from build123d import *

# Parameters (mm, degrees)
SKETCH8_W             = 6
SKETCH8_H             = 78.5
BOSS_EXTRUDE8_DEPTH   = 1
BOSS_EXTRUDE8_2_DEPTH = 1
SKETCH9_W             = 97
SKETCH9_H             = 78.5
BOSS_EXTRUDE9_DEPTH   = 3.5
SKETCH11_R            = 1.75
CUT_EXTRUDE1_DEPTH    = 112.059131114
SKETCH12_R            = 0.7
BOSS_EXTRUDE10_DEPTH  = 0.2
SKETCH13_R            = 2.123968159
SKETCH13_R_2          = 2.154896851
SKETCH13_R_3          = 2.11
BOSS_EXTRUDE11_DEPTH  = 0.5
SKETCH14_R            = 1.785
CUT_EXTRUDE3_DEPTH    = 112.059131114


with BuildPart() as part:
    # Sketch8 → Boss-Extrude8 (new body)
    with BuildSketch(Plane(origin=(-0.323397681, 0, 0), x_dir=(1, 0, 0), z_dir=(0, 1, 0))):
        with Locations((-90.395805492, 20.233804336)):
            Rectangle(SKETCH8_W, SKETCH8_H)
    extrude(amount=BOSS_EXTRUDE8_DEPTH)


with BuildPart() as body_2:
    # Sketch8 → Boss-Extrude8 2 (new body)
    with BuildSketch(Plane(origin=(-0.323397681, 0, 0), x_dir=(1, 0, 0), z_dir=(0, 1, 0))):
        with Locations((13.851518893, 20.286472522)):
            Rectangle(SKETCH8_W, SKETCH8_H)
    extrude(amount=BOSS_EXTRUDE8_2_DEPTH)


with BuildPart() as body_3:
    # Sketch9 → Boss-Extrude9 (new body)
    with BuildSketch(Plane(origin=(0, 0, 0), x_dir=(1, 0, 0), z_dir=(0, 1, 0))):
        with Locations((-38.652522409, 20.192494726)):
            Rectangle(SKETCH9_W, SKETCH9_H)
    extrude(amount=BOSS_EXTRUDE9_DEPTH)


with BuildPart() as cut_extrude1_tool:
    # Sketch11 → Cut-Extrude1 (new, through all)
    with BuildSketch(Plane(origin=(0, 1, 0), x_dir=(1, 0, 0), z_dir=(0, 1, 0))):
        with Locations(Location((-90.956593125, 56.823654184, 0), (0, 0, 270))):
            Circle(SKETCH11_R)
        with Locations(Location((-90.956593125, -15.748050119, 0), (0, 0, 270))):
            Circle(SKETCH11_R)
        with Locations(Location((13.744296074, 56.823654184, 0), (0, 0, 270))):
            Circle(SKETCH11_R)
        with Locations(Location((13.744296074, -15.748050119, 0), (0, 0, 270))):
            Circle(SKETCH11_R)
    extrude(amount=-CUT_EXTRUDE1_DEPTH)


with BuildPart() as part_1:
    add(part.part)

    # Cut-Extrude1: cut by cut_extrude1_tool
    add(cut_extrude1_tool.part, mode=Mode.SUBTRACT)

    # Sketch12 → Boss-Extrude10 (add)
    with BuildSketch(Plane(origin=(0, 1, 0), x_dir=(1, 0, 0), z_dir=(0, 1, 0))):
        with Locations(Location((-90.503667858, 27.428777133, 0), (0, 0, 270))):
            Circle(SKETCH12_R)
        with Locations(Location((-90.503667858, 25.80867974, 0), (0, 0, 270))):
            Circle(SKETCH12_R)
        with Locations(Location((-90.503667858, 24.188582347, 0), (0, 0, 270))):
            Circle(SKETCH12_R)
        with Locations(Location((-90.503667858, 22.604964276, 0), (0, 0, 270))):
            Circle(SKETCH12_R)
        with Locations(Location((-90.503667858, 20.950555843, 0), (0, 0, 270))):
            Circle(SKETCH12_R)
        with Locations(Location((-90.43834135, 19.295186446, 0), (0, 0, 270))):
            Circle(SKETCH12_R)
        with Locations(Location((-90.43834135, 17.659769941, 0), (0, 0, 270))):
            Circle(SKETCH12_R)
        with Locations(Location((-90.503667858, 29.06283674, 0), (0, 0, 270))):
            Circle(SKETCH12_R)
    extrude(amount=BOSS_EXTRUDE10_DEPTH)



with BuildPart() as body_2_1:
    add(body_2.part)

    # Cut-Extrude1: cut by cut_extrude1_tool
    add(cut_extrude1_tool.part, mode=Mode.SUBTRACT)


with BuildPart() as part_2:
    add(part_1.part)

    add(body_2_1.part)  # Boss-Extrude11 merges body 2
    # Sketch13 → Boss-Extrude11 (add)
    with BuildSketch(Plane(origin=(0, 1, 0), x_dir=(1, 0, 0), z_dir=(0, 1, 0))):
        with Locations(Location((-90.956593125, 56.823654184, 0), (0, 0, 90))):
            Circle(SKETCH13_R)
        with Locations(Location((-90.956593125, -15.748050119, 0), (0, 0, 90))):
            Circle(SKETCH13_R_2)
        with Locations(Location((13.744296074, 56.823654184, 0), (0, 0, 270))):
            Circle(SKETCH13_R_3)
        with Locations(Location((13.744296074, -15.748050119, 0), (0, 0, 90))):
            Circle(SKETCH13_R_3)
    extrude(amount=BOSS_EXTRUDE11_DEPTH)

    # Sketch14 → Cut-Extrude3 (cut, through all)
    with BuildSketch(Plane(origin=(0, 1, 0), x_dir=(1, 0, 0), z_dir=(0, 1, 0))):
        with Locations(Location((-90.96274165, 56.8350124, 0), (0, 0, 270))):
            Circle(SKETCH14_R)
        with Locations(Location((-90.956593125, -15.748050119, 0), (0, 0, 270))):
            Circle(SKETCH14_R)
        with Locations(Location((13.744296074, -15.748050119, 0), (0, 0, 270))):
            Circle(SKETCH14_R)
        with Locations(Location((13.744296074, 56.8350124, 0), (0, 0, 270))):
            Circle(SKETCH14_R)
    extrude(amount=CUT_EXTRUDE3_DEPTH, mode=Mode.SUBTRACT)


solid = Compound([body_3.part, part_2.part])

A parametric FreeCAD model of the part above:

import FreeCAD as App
import Part
import Sketcher


def add_polygon(sketch, points):
    """Adds a closed chain of lines whose ends are joined by coincident constraints."""
    first, n = sketch.GeometryCount, len(points)
    for a, b in zip(points, points[1:] + points[:1]):
        sketch.addGeometry(Part.LineSegment(App.Vector(*a, 0), App.Vector(*b, 0)), False)
    for i in range(n):
        sketch.addConstraint(Sketcher.Constraint("Coincident", first + i, 2, first + (i + 1) % n, 1))

doc = App.newDocument("Part")
params = doc.addObject("Spreadsheet::Sheet", "Params")
for row, (alias, value) in enumerate([
    ("sketch1_width", "6 mm"),
    ("sketch1_height", "78.5 mm"),
    ("pad1_length", "1 mm"),
    ("sketch2_width", "6 mm"),
    ("sketch2_height", "78.5 mm"),
    ("pad2_length", "1 mm"),
    ("sketch3_width", "97 mm"),
    ("sketch3_height", "78.5 mm"),
    ("pad3_length", "3.5 mm"),
    ("sketch4_diameter", "3.5 mm"),
    ("pad4_length", "112.059131 mm"),
    ("sketch5_diameter", "1.4 mm"),
    ("pad5_length", "0.2 mm"),
    ("sketch6_diameter", "4.22 mm"),
    ("pad6_length", "0.5 mm"),
    ("sketch7_diameter", "3.57 mm"),
], start=1):
    params.set(f"A{row}", alias)
    params.set(f"B{row}", "=" + value)
    params.setAlias(f"B{row}", alias)

body = doc.addObject("PartDesign::Body", "Body")

# Sketch on XZ plane
sketch1 = body.newObject("Sketcher::SketchObject", "Sketch")
sketch1.AttachmentSupport = (doc.getObject("XZ_Plane"), [""])
sketch1.MapMode = "FlatFace"
add_polygon(sketch1, [(-94, -59), (-94, 19), (-88, 19), (-88, -59)])  # lines 0-3
sketch1.addConstraint(Sketcher.Constraint("Vertical", 0))
sketch1.addConstraint(Sketcher.Constraint("Horizontal", 1))
sketch1.addConstraint(Sketcher.Constraint("Vertical", 2))
sketch1.addConstraint(Sketcher.Constraint("Horizontal", 3))
sketch1.addConstraint(Sketcher.Constraint("DistanceX", 1, 1, 1, 2, 6.0))
sketch1.addConstraint(Sketcher.Constraint("DistanceY", 0, 1, 0, 2, 78.5))
sketch1.addConstraint(Sketcher.Constraint("DistanceX", 0, 2, -1, 1, 93.719203))
sketch1.addConstraint(Sketcher.Constraint("DistanceY", -1, 1, 0, 2, 19.016196))
sketch1.setExpression("Constraints[8]", "Params.sketch1_width")
sketch1.setExpression("Constraints[9]", "Params.sketch1_height")
pad1 = body.newObject("PartDesign::Pad", "Pad")
pad1.Profile = sketch1
pad1.setExpression("Length", "Params.pad1_length")
pad1.Reversed = True
body2 = doc.addObject("PartDesign::Body", "Body001")

# Sketch on XZ plane
sketch2 = body2.newObject("Sketcher::SketchObject", "Sketch001")
sketch2.AttachmentSupport = (doc.getObject("XZ_Plane001"), [""])
sketch2.MapMode = "FlatFace"
add_polygon(sketch2, [(11, -60), (11, 19), (17, 19), (17, -60)])  # lines 0-3
sketch2.addConstraint(Sketcher.Constraint("Vertical", 0))
sketch2.addConstraint(Sketcher.Constraint("Horizontal", 1))
sketch2.addConstraint(Sketcher.Constraint("Vertical", 2))
sketch2.addConstraint(Sketcher.Constraint("Horizontal", 3))
sketch2.addConstraint(Sketcher.Constraint("DistanceX", 1, 1, 1, 2, 6.0))
sketch2.addConstraint(Sketcher.Constraint("DistanceY", 0, 1, 0, 2, 78.5))
sketch2.addConstraint(Sketcher.Constraint("DistanceX", -1, 1, 0, 2, 10.528121))
sketch2.addConstraint(Sketcher.Constraint("DistanceY", -1, 1, 0, 2, 18.963527))
sketch2.setExpression("Constraints[8]", "Params.sketch2_width")
sketch2.setExpression("Constraints[9]", "Params.sketch2_height")
pad2 = body2.newObject("PartDesign::Pad", "Pad001")
pad2.Profile = sketch2
pad2.setExpression("Length", "Params.pad2_length")
pad2.Reversed = True
body3 = doc.addObject("PartDesign::Body", "Body002")

# Sketch on XZ plane
sketch3 = body3.newObject("Sketcher::SketchObject", "Sketch002")
sketch3.AttachmentSupport = (doc.getObject("XZ_Plane002"), [""])
sketch3.MapMode = "FlatFace"
add_polygon(sketch3, [(-87, -59), (-87, 19), (10, 19), (10, -59)])  # lines 0-3
sketch3.addConstraint(Sketcher.Constraint("Vertical", 0))
sketch3.addConstraint(Sketcher.Constraint("Horizontal", 1))
sketch3.addConstraint(Sketcher.Constraint("Vertical", 2))
sketch3.addConstraint(Sketcher.Constraint("Horizontal", 3))
sketch3.addConstraint(Sketcher.Constraint("DistanceX", 1, 1, 1, 2, 97.0))
sketch3.addConstraint(Sketcher.Constraint("DistanceY", 0, 1, 0, 2, 78.5))
sketch3.addConstraint(Sketcher.Constraint("DistanceX", 0, 2, -1, 1, 87.152522))
sketch3.addConstraint(Sketcher.Constraint("DistanceY", -1, 1, 0, 2, 19.057505))
sketch3.setExpression("Constraints[8]", "Params.sketch3_width")
sketch3.setExpression("Constraints[9]", "Params.sketch3_height")
pad3 = body3.newObject("PartDesign::Pad", "Pad002")
pad3.Profile = sketch3
pad3.setExpression("Length", "Params.pad3_length")
pad3.Reversed = True
body4 = doc.addObject("PartDesign::Body", "Body003")
body4.AllowCompound = True

# Sketch on XZ plane
sketch4 = body4.newObject("Sketcher::SketchObject", "Sketch003")
sketch4.AttachmentSupport = (doc.getObject("XZ_Plane003"), [""])
sketch4.MapMode = "FlatFace"
sketch4.AttachmentOffset = App.Placement(App.Vector(0, 0, -1), App.Rotation())
sketch4.addGeometry(Part.Circle(App.Vector(-91, -56.8, 0), App.Vector(0, 0, 1), 1.8), False)
sketch4.addGeometry(Part.Circle(App.Vector(-91, 15.7, 0), App.Vector(0, 0, 1), 1.8), False)
sketch4.addGeometry(Part.Circle(App.Vector(13.7, -56.8, 0), App.Vector(0, 0, 1), 1.8), False)
sketch4.addGeometry(Part.Circle(App.Vector(13.7, 15.7, 0), App.Vector(0, 0, 1), 1.8), False)
sketch4.addConstraint(Sketcher.Constraint("Equal", 0, 1))
sketch4.addConstraint(Sketcher.Constraint("Equal", 1, 2))
sketch4.addConstraint(Sketcher.Constraint("Equal", 2, 3))
sketch4.addConstraint(Sketcher.Constraint("Horizontal", 0, 3, 2, 3))
sketch4.addConstraint(Sketcher.Constraint("Horizontal", 1, 3, 3, 3))
sketch4.addConstraint(Sketcher.Constraint("Vertical", 0, 3, 1, 3))
sketch4.addConstraint(Sketcher.Constraint("Vertical", 2, 3, 3, 3))
sketch4.addConstraint(Sketcher.Constraint("Diameter", 0, 3.5))
sketch4.addConstraint(Sketcher.Constraint("DistanceY", -1, 1, 1, 3, 15.74805))
sketch4.addConstraint(Sketcher.Constraint("DistanceX", 0, 3, 2, 3, 104.700889))
sketch4.addConstraint(Sketcher.Constraint("DistanceX", 0, 3, -1, 1, 90.956593))
sketch4.addConstraint(Sketcher.Constraint("DistanceY", 0, 3, -1, 1, 56.823654))
sketch4.setExpression("Constraints[7]", "Params.sketch4_diameter")
pad4 = body4.newObject("PartDesign::Pad", "Pad003")
pad4.Profile = sketch4
pad4.setExpression("Length", "Params.pad4_length")
doc.recompute()

body5 = doc.addObject("PartDesign::Body", "Body004")
body5.BaseFeature = body4
boolean = body.newObject("PartDesign::Boolean", "Boolean")
boolean.Type = "Cut"
boolean.addObjects([body5])
doc.recompute()

# Sketch on XZ plane
sketch5 = body.newObject("Sketcher::SketchObject", "Sketch004")
sketch5.AttachmentSupport = (doc.getObject("XZ_Plane"), [""])
sketch5.MapMode = "FlatFace"
sketch5.AttachmentOffset = App.Placement(App.Vector(0, 0, -1), App.Rotation())
sketch5.addGeometry(Part.Circle(App.Vector(-90.5, -27.4, 0), App.Vector(0, 0, 1), 0.7), False)
sketch5.addGeometry(Part.Circle(App.Vector(-90.5, -25.8, 0), App.Vector(0, 0, 1), 0.7), False)
sketch5.addGeometry(Part.Circle(App.Vector(-90.5, -24.2, 0), App.Vector(0, 0, 1), 0.7), False)
sketch5.addGeometry(Part.Circle(App.Vector(-90.5, -22.6, 0), App.Vector(0, 0, 1), 0.7), False)
sketch5.addGeometry(Part.Circle(App.Vector(-90.5, -21, 0), App.Vector(0, 0, 1), 0.7), False)
sketch5.addGeometry(Part.Circle(App.Vector(-90.4, -19.3, 0), App.Vector(0, 0, 1), 0.7), False)
sketch5.addGeometry(Part.Circle(App.Vector(-90.4, -17.7, 0), App.Vector(0, 0, 1), 0.7), False)
sketch5.addGeometry(Part.Circle(App.Vector(-90.5, -29.1, 0), App.Vector(0, 0, 1), 0.7), False)
sketch5.addConstraint(Sketcher.Constraint("Equal", 0, 1))
sketch5.addConstraint(Sketcher.Constraint("Equal", 1, 2))
sketch5.addConstraint(Sketcher.Constraint("Equal", 2, 3))
sketch5.addConstraint(Sketcher.Constraint("Equal", 3, 4))
sketch5.addConstraint(Sketcher.Constraint("Equal", 4, 5))
sketch5.addConstraint(Sketcher.Constraint("Equal", 5, 6))
sketch5.addConstraint(Sketcher.Constraint("Equal", 6, 7))
sketch5.addConstraint(Sketcher.Constraint("Vertical", 0, 3, 1, 3))
sketch5.addConstraint(Sketcher.Constraint("Vertical", 1, 3, 2, 3))
sketch5.addConstraint(Sketcher.Constraint("Vertical", 2, 3, 3, 3))
sketch5.addConstraint(Sketcher.Constraint("Vertical", 3, 3, 4, 3))
sketch5.addConstraint(Sketcher.Constraint("Vertical", 5, 3, 6, 3))
sketch5.addConstraint(Sketcher.Constraint("Vertical", 4, 3, 7, 3))
sketch5.addConstraint(Sketcher.Constraint("Diameter", 0, 1.4))
sketch5.addConstraint(Sketcher.Constraint("DistanceY", 1, 3, -1, 1, 25.80868))
sketch5.addConstraint(Sketcher.Constraint("DistanceX", 5, 3, -1, 1, 90.438341))
sketch5.addConstraint(Sketcher.Constraint("DistanceY", 6, 3, -1, 1, 17.65977))
sketch5.addConstraint(Sketcher.Constraint("DistanceY", 2, 3, 3, 3, 1.583618))
sketch5.addConstraint(Sketcher.Constraint("DistanceY", 3, 3, 4, 3, 1.654408))
sketch5.addConstraint(Sketcher.Constraint("DistanceY", 0, 3, 4, 3, 6.478221))
sketch5.addConstraint(Sketcher.Constraint("DistanceY", 4, 3, 5, 3, 1.655369))
sketch5.addConstraint(Sketcher.Constraint("DistanceY", 7, 3, 0, 3, 1.63406))
sketch5.addConstraint(Sketcher.Constraint("DistanceX", 0, 3, -1, 1, 90.503668))
sketch5.addConstraint(Sketcher.Constraint("DistanceY", 0, 3, -1, 1, 27.428777))
sketch5.setExpression("Constraints[13]", "Params.sketch5_diameter")
pad5 = body.newObject("PartDesign::Pad", "Pad004")
pad5.Profile = sketch5
pad5.setExpression("Length", "Params.pad5_length")
pad5.Reversed = True
doc.recompute()

boolean2 = body2.newObject("PartDesign::Boolean", "Boolean001")
boolean2.Type = "Cut"
boolean2.addObjects([body4])
body.AllowCompound = True
doc.recompute()

boolean3 = body.newObject("PartDesign::Boolean", "Boolean002")
boolean3.Type = "Fuse"
boolean3.addObjects([body2])

# Sketch on XZ plane
sketch6 = body.newObject("Sketcher::SketchObject", "Sketch005")
sketch6.AttachmentSupport = (doc.getObject("XZ_Plane"), [""])
sketch6.MapMode = "FlatFace"
sketch6.AttachmentOffset = App.Placement(App.Vector(0, 0, -1), App.Rotation())
sketch6.addGeometry(Part.Circle(App.Vector(-91, -56.8, 0), App.Vector(0, 0, 1), 2.1), False)
sketch6.addGeometry(Part.Circle(App.Vector(-91, 15.7, 0), App.Vector(0, 0, 1), 2.2), False)
sketch6.addGeometry(Part.Circle(App.Vector(13.7, -56.8, 0), App.Vector(0, 0, 1), 2.1), False)
sketch6.addGeometry(Part.Circle(App.Vector(13.7, 15.7, 0), App.Vector(0, 0, 1), 2.1), False)
sketch6.addConstraint(Sketcher.Constraint("Equal", 2, 3))
sketch6.addConstraint(Sketcher.Constraint("Horizontal", 0, 3, 2, 3))
sketch6.addConstraint(Sketcher.Constraint("Horizontal", 1, 3, 3, 3))
sketch6.addConstraint(Sketcher.Constraint("Vertical", 0, 3, 1, 3))
sketch6.addConstraint(Sketcher.Constraint("Vertical", 2, 3, 3, 3))
sketch6.addConstraint(Sketcher.Constraint("Diameter", 2, 4.22))
sketch6.addConstraint(Sketcher.Constraint("Diameter", 0, 4.247936))
sketch6.addConstraint(Sketcher.Constraint("Diameter", 1, 4.309794))
sketch6.addConstraint(Sketcher.Constraint("DistanceY", -1, 1, 1, 3, 15.74805))
sketch6.addConstraint(Sketcher.Constraint("DistanceX", 0, 3, 2, 3, 104.700889))
sketch6.addConstraint(Sketcher.Constraint("DistanceX", 0, 3, -1, 1, 90.956593))
sketch6.addConstraint(Sketcher.Constraint("DistanceY", 0, 3, -1, 1, 56.823654))
sketch6.setExpression("Constraints[5]", "Params.sketch6_diameter")
pad6 = body.newObject("PartDesign::Pad", "Pad005")
pad6.Profile = sketch6
pad6.setExpression("Length", "Params.pad6_length")
pad6.Reversed = True

# Sketch on XZ plane
sketch7 = body.newObject("Sketcher::SketchObject", "Sketch006")
sketch7.AttachmentSupport = (doc.getObject("XZ_Plane"), [""])
sketch7.MapMode = "FlatFace"
sketch7.AttachmentOffset = App.Placement(App.Vector(0, 0, -1), App.Rotation())
sketch7.addGeometry(Part.Circle(App.Vector(-91, -56.8, 0), App.Vector(0, 0, 1), 1.8), False)
sketch7.addGeometry(Part.Circle(App.Vector(-91, 15.7, 0), App.Vector(0, 0, 1), 1.8), False)
sketch7.addGeometry(Part.Circle(App.Vector(13.7, 15.7, 0), App.Vector(0, 0, 1), 1.8), False)
sketch7.addGeometry(Part.Circle(App.Vector(13.7, -56.8, 0), App.Vector(0, 0, 1), 1.8), False)
sketch7.addConstraint(Sketcher.Constraint("Equal", 0, 1))
sketch7.addConstraint(Sketcher.Constraint("Equal", 1, 2))
sketch7.addConstraint(Sketcher.Constraint("Equal", 2, 3))
sketch7.addConstraint(Sketcher.Constraint("Horizontal", 1, 3, 2, 3))
sketch7.addConstraint(Sketcher.Constraint("Horizontal", 0, 3, 3, 3))
sketch7.addConstraint(Sketcher.Constraint("Vertical", 2, 3, 3, 3))
sketch7.addConstraint(Sketcher.Constraint("Diameter", 0, 3.57))
sketch7.addConstraint(Sketcher.Constraint("DistanceX", 0, 3, -1, 1, 90.962742))
sketch7.addConstraint(Sketcher.Constraint("DistanceY", -1, 1, 1, 3, 15.74805))
sketch7.addConstraint(Sketcher.Constraint("DistanceX", 0, 3, 1, 3, 0.006149))
sketch7.addConstraint(Sketcher.Constraint("DistanceX", 1, 3, 2, 3, 104.700889))
sketch7.addConstraint(Sketcher.Constraint("DistanceY", 0, 3, -1, 1, 56.835012))
sketch7.setExpression("Constraints[6]", "Params.sketch7_diameter")
pocket1 = body.newObject("PartDesign::Pocket", "Pocket")
pocket1.Profile = sketch7
pocket1.Type = "ThroughAll"

doc.recompute()
